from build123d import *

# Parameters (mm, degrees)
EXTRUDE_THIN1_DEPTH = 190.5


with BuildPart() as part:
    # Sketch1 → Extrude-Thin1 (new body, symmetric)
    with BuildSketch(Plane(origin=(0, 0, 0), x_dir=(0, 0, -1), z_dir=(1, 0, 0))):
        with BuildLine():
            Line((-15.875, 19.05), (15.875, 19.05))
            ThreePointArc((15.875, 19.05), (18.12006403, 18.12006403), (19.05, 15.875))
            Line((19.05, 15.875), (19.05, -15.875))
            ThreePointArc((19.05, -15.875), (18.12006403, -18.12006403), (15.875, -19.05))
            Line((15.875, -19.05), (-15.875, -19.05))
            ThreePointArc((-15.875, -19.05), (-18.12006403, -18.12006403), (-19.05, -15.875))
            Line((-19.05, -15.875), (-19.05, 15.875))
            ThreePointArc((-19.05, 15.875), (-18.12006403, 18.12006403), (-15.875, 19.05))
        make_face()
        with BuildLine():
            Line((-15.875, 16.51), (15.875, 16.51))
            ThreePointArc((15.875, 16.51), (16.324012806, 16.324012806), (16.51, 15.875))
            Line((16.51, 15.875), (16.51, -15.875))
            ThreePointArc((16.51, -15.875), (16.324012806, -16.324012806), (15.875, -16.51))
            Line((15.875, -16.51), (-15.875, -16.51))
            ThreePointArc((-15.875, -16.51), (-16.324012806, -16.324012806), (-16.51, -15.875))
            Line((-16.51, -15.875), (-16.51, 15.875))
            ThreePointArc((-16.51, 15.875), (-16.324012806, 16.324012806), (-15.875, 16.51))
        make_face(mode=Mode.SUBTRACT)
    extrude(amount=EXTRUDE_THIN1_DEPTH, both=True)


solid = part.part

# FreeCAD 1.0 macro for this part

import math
import FreeCAD as App
import Part
import Sketcher

V = App.Vector
Q = App.Units.Quantity

doc = App.newDocument("Part")
body = doc.addObject("PartDesign::Body", "Body")

sketch1 = body.newObject("Sketcher::SketchObject", "Sketch")
sketch1.AttachmentSupport = (doc.getObject("YZ_Plane"), [""])
sketch1.MapMode = "FlatFace"
sketch1.addGeometry([
    Part.LineSegment(V(19.1, -15.9, 0), V(19.1, 15.9, 0)),
    Part.ArcOfCircle(Part.Circle(V(15.9, 15.9, 0), V(0, 0, 1), 3.2), math.radians(0), math.radians(90)),
    Part.LineSegment(V(15.9, 19.1, 0), V(-15.9, 19.1, 0)),
    Part.ArcOfCircle(Part.Circle(V(-15.9, 15.9, 0), V(0, 0, 1), 3.2), math.radians(90), math.radians(180)),
    Part.LineSegment(V(-19.1, 15.9, 0), V(-19.1, -15.9, 0)),
    Part.ArcOfCircle(Part.Circle(V(-15.9, -15.9, 0), V(0, 0, 1), 3.2), math.radians(-180), math.radians(-90)),
    Part.LineSegment(V(-15.9, -19.1, 0), V(15.9, -19.1, 0)),
    Part.ArcOfCircle(Part.Circle(V(15.9, -15.9, 0), V(0, 0, 1), 3.2), math.radians(-90), math.radians(0)),
    Part.LineSegment(V(16.5, 15.9, 0), V(16.5, -15.9, 0)),
    Part.ArcOfCircle(Part.Circle(V(15.9, -15.9, 0), V(0, 0, 1), 0.6), math.radians(-90), math.radians(0)),
    Part.LineSegment(V(15.9, -16.5, 0), V(-15.9, -16.5, 0)),
    Part.ArcOfCircle(Part.Circle(V(-15.9, -15.9, 0), V(0, 0, 1), 0.6), math.radians(180), math.radians(270)),
    Part.LineSegment(V(-16.5, -15.9, 0), V(-16.5, 15.9, 0)),
    Part.ArcOfCircle(Part.Circle(V(-15.9, 15.9, 0), V(0, 0, 1), 0.6), math.radians(90), math.radians(180)),
    Part.LineSegment(V(-15.9, 16.5, 0), V(15.9, 16.5, 0)),
    Part.ArcOfCircle(Part.Circle(V(15.9, 15.9, 0), V(0, 0, 1), 0.6), math.radians(0), math.radians(90)),
], False)
sketch1.addConstraint([
    Sketcher.Constraint("Tangent", 0, 2, 1, 1),
    Sketcher.Constraint("Tangent", 1, 2, 2, 1),
    Sketcher.Constraint("Tangent", 2, 2, 3, 1),
    Sketcher.Constraint("Tangent", 3, 2, 4, 1),
    Sketcher.Constraint("Tangent", 4, 2, 5, 1),
    Sketcher.Constraint("Tangent", 5, 2, 6, 1),
    Sketcher.Constraint("Tangent", 6, 2, 7, 1),
    Sketcher.Constraint("Tangent", 7, 2, 0, 1),
    Sketcher.Constraint("Tangent", 8, 2, 9, 2),
    Sketcher.Constraint("Tangent", 9, 1, 10, 1),
    Sketcher.Constraint("Tangent", 10, 2, 11, 2),
    Sketcher.Constraint("Tangent", 11, 1, 12, 1),
    Sketcher.Constraint("Tangent", 12, 2, 13, 2),
    Sketcher.Constraint("Tangent", 13, 1, 14, 1),
    Sketcher.Constraint("Tangent", 14, 2, 15, 2),
    Sketcher.Constraint("Tangent", 15, 1, 8, 1),
    Sketcher.Constraint("Vertical", 0),
    Sketcher.Constraint("Horizontal", 2),
    Sketcher.Constraint("Vertical", 4),
    Sketcher.Constraint("Horizontal", 6),
    Sketcher.Constraint("Vertical", 8),
    Sketcher.Constraint("Horizontal", 10),
    Sketcher.Constraint("Vertical", 12),
    Sketcher.Constraint("Horizontal", 14),
    Sketcher.Constraint("Coincident", 9, 3, 7, 3),
    Sketcher.Constraint("Coincident", 11, 3, 5, 3),
    Sketcher.Constraint("Coincident", 13, 3, 3, 3),
    Sketcher.Constraint("Equal", 1, 3),
    Sketcher.Constraint("Equal", 3, 5),
    Sketcher.Constraint("Equal", 5, 7),
    Sketcher.Constraint("Equal", 13, 15),
    Sketcher.Constraint("Symmetric", 1, 3, 5, 3, -1, 1),
    Sketcher.Constraint("Equal", 14, 0),
    Sketcher.Constraint("Radius", 1, Q("0.125 in")),
    Sketcher.Constraint("Radius", 9, Q("0.025 in")),
    Sketcher.Constraint("DistanceX", 2, 2, 2, 1, Q("1.25 in")),
])
pad1 = body.newObject("PartDesign::Pad", "Pad")
pad1.Profile = sketch1
pad1.Length = Q("15 in")
pad1.Midplane = True

doc.recompute()
